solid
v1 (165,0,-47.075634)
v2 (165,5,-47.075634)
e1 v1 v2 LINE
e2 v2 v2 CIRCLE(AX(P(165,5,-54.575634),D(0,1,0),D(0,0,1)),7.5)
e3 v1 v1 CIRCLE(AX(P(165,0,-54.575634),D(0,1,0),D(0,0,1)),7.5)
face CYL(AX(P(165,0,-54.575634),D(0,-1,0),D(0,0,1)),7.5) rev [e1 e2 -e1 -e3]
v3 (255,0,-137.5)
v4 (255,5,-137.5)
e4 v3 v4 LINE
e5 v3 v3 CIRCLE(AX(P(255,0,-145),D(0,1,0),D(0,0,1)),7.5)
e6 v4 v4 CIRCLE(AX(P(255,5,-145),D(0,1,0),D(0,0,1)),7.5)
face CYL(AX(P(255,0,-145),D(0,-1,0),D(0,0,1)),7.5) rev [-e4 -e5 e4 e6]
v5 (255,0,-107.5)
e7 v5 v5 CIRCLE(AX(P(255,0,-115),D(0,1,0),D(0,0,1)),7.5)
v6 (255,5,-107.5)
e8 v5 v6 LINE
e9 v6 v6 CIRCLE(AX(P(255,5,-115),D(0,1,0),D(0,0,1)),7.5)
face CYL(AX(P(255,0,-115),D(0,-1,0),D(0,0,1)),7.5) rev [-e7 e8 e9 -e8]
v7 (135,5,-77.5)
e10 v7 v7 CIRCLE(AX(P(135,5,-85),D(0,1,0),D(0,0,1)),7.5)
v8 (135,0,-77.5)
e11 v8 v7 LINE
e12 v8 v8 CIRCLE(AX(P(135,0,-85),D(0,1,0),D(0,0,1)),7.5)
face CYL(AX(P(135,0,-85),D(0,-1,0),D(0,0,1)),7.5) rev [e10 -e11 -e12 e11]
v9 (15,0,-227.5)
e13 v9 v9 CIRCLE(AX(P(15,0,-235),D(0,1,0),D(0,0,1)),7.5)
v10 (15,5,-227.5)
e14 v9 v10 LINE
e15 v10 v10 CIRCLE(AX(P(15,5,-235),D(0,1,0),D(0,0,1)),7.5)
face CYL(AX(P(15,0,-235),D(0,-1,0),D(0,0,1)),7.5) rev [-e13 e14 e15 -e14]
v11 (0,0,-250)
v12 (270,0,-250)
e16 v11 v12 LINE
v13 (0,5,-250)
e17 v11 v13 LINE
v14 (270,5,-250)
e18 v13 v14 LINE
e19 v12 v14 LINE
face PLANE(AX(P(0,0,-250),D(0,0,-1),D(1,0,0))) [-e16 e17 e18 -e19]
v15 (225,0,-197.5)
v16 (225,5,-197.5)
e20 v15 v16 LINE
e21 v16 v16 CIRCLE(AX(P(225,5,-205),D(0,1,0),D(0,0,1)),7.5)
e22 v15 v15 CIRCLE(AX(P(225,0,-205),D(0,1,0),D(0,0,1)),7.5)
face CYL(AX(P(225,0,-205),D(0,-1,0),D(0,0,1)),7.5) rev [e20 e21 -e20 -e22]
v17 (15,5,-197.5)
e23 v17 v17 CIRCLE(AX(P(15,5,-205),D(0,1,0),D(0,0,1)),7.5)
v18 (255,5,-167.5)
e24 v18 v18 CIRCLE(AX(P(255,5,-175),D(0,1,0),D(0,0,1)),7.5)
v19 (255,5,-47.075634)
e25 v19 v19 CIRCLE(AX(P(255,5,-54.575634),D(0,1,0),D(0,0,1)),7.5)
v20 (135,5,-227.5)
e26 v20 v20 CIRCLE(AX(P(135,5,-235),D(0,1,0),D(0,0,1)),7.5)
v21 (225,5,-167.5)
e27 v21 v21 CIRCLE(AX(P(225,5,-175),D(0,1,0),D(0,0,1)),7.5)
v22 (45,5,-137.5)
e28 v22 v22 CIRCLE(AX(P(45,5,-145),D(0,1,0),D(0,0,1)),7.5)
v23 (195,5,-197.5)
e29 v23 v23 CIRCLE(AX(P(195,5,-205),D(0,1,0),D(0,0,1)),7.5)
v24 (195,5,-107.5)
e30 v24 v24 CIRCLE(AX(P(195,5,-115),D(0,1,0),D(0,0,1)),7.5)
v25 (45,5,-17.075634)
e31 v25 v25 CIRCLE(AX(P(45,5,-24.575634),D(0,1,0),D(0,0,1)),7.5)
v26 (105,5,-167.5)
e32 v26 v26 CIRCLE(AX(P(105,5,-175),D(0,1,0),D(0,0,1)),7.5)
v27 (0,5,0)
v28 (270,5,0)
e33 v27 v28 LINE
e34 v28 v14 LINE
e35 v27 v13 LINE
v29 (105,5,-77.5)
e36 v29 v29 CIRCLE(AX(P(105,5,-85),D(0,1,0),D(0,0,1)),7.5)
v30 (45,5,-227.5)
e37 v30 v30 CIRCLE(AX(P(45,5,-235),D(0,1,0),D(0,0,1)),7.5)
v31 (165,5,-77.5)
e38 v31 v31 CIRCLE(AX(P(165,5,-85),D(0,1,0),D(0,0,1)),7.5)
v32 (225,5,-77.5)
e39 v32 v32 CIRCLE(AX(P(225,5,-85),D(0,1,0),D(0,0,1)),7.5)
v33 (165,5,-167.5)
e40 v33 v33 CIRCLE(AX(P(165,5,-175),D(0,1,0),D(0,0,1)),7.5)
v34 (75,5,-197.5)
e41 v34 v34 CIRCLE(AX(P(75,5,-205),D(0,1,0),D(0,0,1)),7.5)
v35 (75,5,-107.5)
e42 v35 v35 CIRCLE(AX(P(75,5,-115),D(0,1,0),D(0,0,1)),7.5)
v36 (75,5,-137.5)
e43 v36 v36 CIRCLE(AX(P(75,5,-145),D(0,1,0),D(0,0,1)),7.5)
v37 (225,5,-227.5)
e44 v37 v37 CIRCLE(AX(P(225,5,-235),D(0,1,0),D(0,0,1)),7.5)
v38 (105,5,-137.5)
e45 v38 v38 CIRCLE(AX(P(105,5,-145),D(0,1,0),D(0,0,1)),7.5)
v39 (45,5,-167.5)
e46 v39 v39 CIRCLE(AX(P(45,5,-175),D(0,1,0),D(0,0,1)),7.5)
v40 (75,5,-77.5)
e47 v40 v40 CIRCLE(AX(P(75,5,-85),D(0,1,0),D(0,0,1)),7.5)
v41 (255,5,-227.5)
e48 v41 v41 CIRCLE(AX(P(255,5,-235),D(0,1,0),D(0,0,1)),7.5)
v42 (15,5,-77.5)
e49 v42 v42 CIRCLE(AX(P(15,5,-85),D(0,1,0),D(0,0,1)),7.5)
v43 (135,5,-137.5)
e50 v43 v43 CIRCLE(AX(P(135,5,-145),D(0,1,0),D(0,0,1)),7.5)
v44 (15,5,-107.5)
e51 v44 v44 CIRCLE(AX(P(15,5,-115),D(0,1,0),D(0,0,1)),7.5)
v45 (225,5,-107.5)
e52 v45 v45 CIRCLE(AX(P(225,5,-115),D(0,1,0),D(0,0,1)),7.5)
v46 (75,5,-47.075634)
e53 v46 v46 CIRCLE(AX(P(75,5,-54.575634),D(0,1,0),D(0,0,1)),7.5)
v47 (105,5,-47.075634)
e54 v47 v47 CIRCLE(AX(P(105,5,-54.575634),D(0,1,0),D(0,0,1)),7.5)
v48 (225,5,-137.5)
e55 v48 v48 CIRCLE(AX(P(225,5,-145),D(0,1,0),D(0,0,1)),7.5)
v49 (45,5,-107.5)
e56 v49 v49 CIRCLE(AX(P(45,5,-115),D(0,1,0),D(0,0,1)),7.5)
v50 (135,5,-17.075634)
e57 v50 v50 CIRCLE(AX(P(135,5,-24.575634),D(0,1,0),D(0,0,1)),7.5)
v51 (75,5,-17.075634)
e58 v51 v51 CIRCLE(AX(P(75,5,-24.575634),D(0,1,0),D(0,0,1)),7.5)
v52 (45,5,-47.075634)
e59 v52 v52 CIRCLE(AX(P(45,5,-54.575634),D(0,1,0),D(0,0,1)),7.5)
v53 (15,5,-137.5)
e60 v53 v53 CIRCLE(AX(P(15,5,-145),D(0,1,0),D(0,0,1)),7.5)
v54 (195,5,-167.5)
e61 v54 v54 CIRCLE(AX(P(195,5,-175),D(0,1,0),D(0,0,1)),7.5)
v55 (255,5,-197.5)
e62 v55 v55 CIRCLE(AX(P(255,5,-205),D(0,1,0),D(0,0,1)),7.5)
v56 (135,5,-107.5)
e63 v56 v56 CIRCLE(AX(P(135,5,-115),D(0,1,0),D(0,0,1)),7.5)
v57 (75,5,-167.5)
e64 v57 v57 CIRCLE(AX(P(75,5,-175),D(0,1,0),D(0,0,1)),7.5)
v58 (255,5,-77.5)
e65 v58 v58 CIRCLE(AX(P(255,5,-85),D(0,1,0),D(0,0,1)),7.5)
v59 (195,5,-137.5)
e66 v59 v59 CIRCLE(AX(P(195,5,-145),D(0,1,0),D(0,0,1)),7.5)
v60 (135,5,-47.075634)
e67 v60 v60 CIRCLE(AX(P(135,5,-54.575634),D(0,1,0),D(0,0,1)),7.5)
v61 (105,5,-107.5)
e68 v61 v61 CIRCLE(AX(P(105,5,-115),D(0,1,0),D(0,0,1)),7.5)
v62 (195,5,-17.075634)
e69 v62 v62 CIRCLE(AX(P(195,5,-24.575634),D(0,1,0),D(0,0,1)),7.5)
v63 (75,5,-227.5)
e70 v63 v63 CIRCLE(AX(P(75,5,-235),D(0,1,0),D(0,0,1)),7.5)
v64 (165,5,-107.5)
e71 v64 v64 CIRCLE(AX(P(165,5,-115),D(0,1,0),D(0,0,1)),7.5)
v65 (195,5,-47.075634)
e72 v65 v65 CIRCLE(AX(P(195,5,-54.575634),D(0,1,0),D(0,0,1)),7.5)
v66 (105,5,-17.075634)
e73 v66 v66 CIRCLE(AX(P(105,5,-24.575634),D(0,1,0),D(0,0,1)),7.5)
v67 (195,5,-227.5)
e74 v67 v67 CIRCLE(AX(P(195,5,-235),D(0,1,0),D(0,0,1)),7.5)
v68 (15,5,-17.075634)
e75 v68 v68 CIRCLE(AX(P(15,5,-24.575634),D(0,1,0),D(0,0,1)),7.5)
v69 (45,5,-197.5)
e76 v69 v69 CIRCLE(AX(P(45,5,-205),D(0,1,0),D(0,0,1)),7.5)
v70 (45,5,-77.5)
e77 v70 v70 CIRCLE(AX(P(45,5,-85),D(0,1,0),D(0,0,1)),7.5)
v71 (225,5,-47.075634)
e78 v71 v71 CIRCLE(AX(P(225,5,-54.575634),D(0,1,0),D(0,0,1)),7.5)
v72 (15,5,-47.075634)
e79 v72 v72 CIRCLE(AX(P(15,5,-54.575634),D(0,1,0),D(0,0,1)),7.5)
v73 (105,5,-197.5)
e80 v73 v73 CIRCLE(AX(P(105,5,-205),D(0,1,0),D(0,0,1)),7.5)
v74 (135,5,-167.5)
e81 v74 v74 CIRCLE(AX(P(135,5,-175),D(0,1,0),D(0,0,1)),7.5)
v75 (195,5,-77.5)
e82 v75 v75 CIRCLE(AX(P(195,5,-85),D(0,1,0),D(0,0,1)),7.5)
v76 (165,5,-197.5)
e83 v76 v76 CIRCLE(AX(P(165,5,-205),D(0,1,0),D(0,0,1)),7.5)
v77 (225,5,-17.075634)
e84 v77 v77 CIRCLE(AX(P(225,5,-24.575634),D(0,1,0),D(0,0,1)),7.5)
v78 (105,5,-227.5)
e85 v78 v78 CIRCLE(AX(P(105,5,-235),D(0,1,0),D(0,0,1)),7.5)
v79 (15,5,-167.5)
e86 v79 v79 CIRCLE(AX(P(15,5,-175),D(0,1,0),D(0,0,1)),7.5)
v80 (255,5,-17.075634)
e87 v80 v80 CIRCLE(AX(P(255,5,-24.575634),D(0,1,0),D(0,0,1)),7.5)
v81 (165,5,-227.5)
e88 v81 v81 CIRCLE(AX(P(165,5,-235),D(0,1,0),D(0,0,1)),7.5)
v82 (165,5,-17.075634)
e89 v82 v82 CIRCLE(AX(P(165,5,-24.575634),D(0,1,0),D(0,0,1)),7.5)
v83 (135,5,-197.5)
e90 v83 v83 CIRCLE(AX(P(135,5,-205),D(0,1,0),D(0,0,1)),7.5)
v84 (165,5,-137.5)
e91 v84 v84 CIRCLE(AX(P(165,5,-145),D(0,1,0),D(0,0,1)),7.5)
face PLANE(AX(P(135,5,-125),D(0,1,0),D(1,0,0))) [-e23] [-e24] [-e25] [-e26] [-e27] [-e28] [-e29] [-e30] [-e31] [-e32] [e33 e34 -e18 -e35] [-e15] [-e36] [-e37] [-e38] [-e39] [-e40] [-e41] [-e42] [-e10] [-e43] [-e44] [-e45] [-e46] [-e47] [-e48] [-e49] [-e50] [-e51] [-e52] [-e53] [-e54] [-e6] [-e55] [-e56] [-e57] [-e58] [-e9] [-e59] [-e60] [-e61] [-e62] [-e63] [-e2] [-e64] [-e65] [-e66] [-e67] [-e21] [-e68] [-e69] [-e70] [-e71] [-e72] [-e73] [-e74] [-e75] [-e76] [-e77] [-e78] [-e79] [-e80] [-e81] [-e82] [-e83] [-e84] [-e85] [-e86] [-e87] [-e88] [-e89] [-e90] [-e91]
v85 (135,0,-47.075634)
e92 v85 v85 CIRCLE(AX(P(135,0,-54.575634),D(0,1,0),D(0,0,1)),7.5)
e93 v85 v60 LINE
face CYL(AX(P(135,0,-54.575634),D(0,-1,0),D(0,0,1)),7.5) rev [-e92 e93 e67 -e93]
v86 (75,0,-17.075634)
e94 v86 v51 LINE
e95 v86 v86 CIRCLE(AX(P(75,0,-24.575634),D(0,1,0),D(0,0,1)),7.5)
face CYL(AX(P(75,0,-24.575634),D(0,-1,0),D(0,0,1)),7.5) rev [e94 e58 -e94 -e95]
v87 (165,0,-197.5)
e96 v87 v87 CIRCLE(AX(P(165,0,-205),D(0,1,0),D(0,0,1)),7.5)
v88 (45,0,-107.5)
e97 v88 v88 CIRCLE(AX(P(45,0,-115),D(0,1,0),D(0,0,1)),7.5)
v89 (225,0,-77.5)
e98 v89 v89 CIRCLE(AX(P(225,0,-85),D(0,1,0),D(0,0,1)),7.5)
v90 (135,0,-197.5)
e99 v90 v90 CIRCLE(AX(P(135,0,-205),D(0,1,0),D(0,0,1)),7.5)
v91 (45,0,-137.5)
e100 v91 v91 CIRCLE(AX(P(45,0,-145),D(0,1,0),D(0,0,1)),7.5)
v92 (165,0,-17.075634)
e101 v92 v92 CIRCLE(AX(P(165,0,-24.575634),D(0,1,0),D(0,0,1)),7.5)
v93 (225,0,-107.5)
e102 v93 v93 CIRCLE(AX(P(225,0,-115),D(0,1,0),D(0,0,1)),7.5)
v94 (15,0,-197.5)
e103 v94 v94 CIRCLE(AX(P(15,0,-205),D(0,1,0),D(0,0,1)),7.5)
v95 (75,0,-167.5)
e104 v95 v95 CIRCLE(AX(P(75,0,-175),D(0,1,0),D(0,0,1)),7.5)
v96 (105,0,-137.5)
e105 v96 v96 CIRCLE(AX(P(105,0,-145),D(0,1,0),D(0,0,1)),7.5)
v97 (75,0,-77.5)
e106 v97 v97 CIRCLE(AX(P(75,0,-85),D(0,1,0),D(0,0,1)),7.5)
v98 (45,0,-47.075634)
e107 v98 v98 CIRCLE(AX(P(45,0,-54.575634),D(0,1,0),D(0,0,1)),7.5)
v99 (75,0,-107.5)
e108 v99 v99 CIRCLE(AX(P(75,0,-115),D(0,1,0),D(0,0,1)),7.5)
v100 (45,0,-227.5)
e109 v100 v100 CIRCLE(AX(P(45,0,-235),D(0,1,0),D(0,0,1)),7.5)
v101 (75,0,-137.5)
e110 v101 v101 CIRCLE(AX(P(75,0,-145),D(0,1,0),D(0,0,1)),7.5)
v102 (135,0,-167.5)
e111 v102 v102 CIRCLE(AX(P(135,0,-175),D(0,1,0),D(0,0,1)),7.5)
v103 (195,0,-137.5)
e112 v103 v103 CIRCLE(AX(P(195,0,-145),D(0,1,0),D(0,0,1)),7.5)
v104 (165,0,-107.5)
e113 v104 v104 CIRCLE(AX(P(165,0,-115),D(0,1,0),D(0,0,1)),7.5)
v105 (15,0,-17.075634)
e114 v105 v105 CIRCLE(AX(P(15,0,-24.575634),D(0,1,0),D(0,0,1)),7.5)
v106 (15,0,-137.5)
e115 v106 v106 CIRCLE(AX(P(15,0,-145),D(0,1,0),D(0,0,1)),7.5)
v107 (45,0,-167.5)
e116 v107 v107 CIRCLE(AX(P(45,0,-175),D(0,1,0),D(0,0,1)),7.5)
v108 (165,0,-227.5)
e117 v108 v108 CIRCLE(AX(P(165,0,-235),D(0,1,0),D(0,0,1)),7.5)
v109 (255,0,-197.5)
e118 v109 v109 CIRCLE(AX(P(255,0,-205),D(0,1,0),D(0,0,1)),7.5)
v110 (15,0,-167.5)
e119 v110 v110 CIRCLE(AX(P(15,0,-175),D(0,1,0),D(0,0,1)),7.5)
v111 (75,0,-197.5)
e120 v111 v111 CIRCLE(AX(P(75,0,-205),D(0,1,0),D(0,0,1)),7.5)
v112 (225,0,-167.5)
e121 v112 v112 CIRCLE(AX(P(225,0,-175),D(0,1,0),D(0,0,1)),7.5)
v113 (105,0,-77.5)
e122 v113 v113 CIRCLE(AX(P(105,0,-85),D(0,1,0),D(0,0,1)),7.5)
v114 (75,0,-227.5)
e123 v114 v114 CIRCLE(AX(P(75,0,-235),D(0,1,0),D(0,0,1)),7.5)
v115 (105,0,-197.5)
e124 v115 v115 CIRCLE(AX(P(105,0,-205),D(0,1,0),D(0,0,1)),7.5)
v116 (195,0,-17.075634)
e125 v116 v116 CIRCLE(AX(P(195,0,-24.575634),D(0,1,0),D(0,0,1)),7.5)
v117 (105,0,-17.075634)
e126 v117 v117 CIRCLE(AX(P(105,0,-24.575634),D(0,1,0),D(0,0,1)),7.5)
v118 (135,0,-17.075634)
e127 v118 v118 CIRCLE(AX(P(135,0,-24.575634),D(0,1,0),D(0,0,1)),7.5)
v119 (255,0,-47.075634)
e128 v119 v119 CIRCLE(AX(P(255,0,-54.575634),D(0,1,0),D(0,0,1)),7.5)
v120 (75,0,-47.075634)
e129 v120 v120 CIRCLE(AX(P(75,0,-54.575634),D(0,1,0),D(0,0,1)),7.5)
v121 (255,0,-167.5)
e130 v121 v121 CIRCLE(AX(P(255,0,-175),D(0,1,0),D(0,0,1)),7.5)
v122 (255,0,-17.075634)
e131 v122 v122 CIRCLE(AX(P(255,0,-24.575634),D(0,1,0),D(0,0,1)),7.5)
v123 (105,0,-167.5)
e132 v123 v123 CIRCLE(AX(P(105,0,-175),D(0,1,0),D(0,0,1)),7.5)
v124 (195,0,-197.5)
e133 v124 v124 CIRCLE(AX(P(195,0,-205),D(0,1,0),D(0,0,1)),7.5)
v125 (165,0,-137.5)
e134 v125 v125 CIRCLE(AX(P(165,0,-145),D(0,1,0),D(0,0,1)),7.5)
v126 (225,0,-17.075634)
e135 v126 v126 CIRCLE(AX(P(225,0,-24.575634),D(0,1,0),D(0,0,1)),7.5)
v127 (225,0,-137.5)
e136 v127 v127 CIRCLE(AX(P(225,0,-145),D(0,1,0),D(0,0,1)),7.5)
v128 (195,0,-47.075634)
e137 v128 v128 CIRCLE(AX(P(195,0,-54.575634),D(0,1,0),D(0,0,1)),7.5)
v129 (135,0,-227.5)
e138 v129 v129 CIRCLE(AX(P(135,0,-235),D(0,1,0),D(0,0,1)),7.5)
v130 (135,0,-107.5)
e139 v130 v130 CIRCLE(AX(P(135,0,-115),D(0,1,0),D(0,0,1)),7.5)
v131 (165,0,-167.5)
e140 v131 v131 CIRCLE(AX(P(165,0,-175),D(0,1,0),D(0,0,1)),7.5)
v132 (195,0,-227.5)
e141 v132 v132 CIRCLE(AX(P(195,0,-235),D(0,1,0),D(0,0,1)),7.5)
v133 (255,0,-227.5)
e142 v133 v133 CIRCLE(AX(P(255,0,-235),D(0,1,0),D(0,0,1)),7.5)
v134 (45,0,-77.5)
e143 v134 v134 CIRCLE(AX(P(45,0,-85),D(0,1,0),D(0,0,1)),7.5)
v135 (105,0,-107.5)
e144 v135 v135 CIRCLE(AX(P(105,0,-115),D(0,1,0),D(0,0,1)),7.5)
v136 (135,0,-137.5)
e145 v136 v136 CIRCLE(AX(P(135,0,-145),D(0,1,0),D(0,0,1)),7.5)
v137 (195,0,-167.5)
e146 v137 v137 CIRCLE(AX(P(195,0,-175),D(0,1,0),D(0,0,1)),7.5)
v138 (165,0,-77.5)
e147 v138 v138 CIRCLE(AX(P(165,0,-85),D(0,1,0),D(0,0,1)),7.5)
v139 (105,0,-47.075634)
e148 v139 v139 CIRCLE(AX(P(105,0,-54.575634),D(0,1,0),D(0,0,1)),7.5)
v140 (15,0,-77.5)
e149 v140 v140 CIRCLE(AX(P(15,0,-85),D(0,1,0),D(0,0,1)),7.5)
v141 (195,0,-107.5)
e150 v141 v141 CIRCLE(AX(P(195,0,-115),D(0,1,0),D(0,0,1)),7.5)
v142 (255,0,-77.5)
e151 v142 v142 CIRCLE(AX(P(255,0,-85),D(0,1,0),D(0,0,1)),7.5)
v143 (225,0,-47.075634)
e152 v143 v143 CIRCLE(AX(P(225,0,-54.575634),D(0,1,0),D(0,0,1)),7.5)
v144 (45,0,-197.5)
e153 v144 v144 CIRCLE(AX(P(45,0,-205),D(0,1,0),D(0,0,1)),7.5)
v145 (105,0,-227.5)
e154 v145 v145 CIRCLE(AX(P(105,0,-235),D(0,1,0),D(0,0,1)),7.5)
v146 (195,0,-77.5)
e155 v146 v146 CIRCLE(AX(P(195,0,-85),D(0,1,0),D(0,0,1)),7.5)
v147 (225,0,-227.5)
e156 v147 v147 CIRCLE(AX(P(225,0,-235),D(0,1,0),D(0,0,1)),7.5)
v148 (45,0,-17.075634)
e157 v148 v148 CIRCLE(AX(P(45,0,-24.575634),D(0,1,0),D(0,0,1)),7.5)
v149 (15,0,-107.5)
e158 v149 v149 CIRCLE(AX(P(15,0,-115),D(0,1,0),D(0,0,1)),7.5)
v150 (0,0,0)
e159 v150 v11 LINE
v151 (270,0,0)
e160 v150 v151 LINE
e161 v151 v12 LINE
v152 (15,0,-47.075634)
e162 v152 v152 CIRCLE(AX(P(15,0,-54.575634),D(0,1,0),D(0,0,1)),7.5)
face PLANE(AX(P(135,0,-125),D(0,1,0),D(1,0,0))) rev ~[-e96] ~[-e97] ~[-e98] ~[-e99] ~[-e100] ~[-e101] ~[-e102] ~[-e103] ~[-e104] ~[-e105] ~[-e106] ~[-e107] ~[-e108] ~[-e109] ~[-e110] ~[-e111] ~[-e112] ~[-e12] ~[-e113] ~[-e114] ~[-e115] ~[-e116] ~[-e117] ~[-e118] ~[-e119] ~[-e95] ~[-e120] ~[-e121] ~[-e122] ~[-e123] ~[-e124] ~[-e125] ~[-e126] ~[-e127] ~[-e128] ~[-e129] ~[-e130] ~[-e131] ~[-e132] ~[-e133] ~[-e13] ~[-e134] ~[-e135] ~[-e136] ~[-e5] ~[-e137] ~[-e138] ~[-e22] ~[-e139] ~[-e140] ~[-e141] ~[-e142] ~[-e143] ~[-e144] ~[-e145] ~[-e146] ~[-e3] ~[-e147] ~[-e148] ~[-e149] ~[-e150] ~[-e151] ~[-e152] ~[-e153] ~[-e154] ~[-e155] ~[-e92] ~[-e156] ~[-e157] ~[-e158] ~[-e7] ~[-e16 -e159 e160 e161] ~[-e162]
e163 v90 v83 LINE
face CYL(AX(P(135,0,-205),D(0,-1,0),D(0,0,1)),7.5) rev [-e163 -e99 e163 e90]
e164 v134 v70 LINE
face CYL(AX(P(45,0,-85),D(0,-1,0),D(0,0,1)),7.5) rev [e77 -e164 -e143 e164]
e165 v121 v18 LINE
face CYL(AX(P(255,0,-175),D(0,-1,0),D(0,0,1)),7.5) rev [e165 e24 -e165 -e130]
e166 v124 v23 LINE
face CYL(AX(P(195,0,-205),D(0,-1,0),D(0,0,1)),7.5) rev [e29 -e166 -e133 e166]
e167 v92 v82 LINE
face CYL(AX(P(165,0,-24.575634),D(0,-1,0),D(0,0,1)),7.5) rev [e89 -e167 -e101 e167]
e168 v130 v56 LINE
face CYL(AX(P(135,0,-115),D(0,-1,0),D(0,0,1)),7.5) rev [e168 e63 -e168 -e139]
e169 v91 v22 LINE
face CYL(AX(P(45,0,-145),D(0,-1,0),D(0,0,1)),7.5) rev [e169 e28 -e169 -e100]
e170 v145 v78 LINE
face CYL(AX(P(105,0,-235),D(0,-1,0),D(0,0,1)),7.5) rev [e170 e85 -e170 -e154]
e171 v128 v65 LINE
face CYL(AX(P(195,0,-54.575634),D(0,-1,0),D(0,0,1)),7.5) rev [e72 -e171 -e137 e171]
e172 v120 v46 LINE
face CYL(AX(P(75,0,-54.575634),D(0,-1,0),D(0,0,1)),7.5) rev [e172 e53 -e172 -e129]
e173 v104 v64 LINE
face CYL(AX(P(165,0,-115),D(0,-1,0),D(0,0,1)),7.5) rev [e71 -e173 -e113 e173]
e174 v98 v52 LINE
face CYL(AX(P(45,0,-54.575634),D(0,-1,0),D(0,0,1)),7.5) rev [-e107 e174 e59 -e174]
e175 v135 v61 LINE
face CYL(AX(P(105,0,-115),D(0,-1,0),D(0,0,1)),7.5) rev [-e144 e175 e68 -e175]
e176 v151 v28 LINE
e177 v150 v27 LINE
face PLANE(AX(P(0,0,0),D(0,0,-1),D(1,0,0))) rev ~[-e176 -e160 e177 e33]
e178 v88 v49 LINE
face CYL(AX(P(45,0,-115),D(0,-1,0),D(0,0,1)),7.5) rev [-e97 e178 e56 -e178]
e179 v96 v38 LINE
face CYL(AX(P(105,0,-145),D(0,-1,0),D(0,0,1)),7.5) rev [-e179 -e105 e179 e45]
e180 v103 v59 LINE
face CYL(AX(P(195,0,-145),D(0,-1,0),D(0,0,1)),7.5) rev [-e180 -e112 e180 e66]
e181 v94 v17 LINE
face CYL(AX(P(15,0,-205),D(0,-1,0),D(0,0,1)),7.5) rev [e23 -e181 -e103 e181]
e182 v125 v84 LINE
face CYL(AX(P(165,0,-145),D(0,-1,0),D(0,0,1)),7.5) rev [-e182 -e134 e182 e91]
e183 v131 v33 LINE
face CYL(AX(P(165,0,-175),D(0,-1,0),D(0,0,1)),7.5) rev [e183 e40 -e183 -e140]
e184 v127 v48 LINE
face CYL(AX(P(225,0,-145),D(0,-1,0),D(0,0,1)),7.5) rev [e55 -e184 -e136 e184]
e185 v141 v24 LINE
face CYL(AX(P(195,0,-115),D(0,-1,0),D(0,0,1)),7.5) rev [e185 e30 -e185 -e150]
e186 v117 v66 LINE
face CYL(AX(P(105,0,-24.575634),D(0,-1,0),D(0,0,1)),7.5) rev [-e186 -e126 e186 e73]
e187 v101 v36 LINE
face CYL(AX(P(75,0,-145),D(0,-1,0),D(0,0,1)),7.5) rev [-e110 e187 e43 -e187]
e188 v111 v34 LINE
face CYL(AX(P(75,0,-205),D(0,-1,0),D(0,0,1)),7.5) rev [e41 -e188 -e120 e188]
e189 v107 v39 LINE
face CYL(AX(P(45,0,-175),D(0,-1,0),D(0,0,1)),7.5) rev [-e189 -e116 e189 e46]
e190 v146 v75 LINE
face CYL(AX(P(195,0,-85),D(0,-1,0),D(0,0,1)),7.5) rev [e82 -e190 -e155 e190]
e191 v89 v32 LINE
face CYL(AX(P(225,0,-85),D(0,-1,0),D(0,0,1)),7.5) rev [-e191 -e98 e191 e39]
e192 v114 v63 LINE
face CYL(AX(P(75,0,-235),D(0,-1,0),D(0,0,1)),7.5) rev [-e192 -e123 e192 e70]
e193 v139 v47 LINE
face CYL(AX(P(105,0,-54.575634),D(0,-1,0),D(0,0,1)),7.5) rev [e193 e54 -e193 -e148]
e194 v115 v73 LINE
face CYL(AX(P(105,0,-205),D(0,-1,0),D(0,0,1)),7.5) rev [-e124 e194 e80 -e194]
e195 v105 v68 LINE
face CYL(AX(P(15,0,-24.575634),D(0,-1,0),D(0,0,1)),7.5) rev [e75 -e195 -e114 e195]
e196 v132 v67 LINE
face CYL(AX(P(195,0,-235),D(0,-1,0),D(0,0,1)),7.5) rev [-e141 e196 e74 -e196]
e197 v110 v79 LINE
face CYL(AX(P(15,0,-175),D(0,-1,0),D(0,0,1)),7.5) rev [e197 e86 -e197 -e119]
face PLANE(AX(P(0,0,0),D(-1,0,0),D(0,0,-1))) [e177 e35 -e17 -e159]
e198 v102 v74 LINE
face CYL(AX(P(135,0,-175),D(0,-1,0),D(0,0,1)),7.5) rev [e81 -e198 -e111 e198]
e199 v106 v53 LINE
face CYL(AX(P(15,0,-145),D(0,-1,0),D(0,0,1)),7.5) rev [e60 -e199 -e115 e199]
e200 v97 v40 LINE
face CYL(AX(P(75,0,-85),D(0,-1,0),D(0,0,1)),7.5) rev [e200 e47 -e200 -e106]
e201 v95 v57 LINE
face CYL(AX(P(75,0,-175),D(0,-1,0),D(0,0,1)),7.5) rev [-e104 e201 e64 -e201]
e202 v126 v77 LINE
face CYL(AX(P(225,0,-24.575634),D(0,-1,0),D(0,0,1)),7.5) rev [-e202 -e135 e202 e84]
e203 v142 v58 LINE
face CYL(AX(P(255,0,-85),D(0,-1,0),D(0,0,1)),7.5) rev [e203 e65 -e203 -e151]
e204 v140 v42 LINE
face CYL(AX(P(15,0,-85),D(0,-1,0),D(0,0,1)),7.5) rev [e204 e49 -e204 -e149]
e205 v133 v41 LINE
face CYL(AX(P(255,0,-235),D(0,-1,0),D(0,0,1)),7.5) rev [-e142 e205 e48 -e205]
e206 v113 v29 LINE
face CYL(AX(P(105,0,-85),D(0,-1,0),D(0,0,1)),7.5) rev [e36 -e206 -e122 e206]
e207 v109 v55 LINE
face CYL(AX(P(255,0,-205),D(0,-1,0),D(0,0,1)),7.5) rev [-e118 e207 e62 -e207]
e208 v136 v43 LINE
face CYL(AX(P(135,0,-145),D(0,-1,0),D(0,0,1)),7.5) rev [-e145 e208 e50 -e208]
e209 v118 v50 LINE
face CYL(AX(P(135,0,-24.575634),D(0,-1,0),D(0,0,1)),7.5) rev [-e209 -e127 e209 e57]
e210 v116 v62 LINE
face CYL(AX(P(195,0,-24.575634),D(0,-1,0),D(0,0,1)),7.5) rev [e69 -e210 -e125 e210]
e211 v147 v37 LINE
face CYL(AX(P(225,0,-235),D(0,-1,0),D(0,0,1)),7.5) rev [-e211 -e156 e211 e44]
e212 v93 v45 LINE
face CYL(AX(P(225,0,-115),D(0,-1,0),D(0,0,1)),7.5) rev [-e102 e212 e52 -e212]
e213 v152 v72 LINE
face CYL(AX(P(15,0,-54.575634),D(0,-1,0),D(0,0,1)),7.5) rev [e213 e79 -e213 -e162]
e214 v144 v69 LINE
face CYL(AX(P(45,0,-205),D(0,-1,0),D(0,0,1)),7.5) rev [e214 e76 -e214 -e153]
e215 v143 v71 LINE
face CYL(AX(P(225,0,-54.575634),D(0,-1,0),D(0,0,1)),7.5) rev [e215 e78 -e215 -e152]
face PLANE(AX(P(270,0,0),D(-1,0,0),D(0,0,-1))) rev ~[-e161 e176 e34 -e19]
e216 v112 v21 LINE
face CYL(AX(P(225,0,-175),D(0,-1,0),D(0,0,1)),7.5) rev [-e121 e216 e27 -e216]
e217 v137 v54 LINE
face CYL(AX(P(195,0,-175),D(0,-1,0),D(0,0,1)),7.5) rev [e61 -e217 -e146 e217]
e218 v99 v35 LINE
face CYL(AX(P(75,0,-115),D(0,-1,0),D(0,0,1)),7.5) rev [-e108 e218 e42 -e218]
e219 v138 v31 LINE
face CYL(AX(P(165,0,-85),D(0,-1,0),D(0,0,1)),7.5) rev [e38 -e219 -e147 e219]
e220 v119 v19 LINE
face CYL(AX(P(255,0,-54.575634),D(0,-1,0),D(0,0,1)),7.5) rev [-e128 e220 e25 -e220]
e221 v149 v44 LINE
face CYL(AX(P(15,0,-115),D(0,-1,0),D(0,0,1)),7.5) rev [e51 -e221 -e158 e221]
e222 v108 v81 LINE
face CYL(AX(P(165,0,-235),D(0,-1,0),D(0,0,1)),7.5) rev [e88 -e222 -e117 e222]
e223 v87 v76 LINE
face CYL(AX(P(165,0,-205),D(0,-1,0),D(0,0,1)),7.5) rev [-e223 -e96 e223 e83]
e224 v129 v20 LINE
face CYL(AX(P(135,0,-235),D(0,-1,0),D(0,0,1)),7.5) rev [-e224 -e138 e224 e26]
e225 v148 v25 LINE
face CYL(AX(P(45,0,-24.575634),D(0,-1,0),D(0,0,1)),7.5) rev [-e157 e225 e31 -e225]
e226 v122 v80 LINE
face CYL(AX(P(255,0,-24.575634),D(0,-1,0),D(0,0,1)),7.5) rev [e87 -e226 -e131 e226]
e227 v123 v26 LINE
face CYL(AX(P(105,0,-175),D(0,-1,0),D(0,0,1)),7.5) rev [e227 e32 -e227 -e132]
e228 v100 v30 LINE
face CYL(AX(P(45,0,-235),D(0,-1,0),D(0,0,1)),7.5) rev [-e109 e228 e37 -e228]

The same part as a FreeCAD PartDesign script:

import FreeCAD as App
import Part
import Sketcher

V = App.Vector
Q = App.Units.Quantity

doc = App.newDocument("Part")
params = doc.addObject("Spreadsheet::Sheet", "Params")
for row, (alias, value) in enumerate([
    ("sketch1_diameter", "15 mm"),
    ("sketch1_width", "270 mm"),
    ("sketch1_height", "250 mm"),
    ("pad1_length", "5 mm"),
], start=1):
    params.set(f"A{row}", alias)
    params.set(f"B{row}", "=" + value)
    params.setAlias(f"B{row}", alias)

body = doc.addObject("PartDesign::Body", "Body")

# Sketch on XZ plane
sketch1 = body.newObject("Sketcher::SketchObject", "Sketch")
sketch1.AttachmentSupport = (doc.getObject("XZ_Plane"), [""])
sketch1.MapMode = "FlatFace"
sketch1.addGeometry(Part.LineSegment(V(0, -250, 0), V(0, 0, 0)), False)
sketch1.addGeometry(Part.LineSegment(V(0, 0, 0), V(270, 0, 0)), False)
sketch1.addGeometry(Part.LineSegment(V(270, 0, 0), V(270, -250, 0)), False)
sketch1.addGeometry(Part.LineSegment(V(270, -250, 0), V(0, -250, 0)), False)
sketch1.addGeometry(Part.Circle(V(15, -24.575634, 0), V(0, 0, 1), 7.5), False)
sketch1.addGeometry(Part.Circle(V(45, -24.575634, 0), V(0, 0, 1), 7.5), False)
sketch1.addGeometry(Part.Circle(V(15, -54.575634, 0), V(0, 0, 1), 7.5), False)
sketch1.addGeometry(Part.Circle(V(45, -54.575634, 0), V(0, 0, 1), 7.5), False)
sketch1.addGeometry(Part.Circle(V(75, -24.575634, 0), V(0, 0, 1), 7.5), False)
sketch1.addGeometry(Part.Circle(V(105, -24.575634, 0), V(0, 0, 1), 7.5), False)
sketch1.addGeometry(Part.Circle(V(75, -54.575634, 0), V(0, 0, 1), 7.5), False)
sketch1.addGeometry(Part.Circle(V(105, -54.575634, 0), V(0, 0, 1), 7.5), False)
sketch1.addGeometry(Part.Circle(V(15, -85, 0), V(0, 0, 1), 7.5), False)
sketch1.addGeometry(Part.Circle(V(45, -85, 0), V(0, 0, 1), 7.5), False)
sketch1.addGeometry(Part.Circle(V(15, -115, 0), V(0, 0, 1), 7.5), False)
sketch1.addGeometry(Part.Circle(V(45, -115, 0), V(0, 0, 1), 7.5), False)
sketch1.addGeometry(Part.Circle(V(75, -85, 0), V(0, 0, 1), 7.5), False)
sketch1.addGeometry(Part.Circle(V(105, -85, 0), V(0, 0, 1), 7.5), False)
sketch1.addGeometry(Part.Circle(V(75, -115, 0), V(0, 0, 1), 7.5), False)
sketch1.addGeometry(Part.Circle(V(105, -115, 0), V(0, 0, 1), 7.5), False)
sketch1.addGeometry(Part.Circle(V(135, -24.575634, 0), V(0, 0, 1), 7.5), False)
sketch1.addGeometry(Part.Circle(V(165, -24.575634, 0), V(0, 0, 1), 7.5), False)
sketch1.addGeometry(Part.Circle(V(195, -24.575634, 0), V(0, 0, 1), 7.5), False)
sketch1.addGeometry(Part.Circle(V(135, -54.575634, 0), V(0, 0, 1), 7.5), False)
sketch1.addGeometry(Part.Circle(V(165, -54.575634, 0), V(0, 0, 1), 7.5), False)
sketch1.addGeometry(Part.Circle(V(195, -54.575634, 0), V(0, 0, 1), 7.5), False)
sketch1.addGeometry(Part.Circle(V(225, -24.575634, 0), V(0, 0, 1), 7.5), False)
sketch1.addGeometry(Part.Circle(V(255, -24.575634, 0), V(0, 0, 1), 7.5), False)
sketch1.addGeometry(Part.Circle(V(225, -54.575634, 0), V(0, 0, 1), 7.5), False)
sketch1.addGeometry(Part.Circle(V(255, -54.575634, 0), V(0, 0, 1), 7.5), False)
sketch1.addGeometry(Part.Circle(V(135, -85, 0), V(0, 0, 1), 7.5), False)
sketch1.addGeometry(Part.Circle(V(165, -85, 0), V(0, 0, 1), 7.5), False)
sketch1.addGeometry(Part.Circle(V(195, -85, 0), V(0, 0, 1), 7.5), False)
sketch1.addGeometry(Part.Circle(V(135, -115, 0), V(0, 0, 1), 7.5), False)
sketch1.addGeometry(Part.Circle(V(165, -115, 0), V(0, 0, 1), 7.5), False)
sketch1.addGeometry(Part.Circle(V(195, -115, 0), V(0, 0, 1), 7.5), False)
sketch1.addGeometry(Part.Circle(V(225, -85, 0), V(0, 0, 1), 7.5), False)
sketch1.addGeometry(Part.Circle(V(255, -85, 0), V(0, 0, 1), 7.5), False)
sketch1.addGeometry(Part.Circle(V(225, -115, 0), V(0, 0, 1), 7.5), False)
sketch1.addGeometry(Part.Circle(V(255, -115, 0), V(0, 0, 1), 7.5), False)
sketch1.addGeometry(Part.Circle(V(15, -145, 0), V(0, 0, 1), 7.5), False)
sketch1.addGeometry(Part.Circle(V(45, -145, 0), V(0, 0, 1), 7.5), False)
sketch1.addGeometry(Part.Circle(V(15, -175, 0), V(0, 0, 1), 7.5), False)
sketch1.addGeometry(Part.Circle(V(45, -175, 0), V(0, 0, 1), 7.5), False)
sketch1.addGeometry(Part.Circle(V(75, -145, 0), V(0, 0, 1), 7.5), False)
sketch1.addGeometry(Part.Circle(V(105, -145, 0), V(0, 0, 1), 7.5), False)
sketch1.addGeometry(Part.Circle(V(75, -175, 0), V(0, 0, 1), 7.5), False)
sketch1.addGeometry(Part.Circle(V(105, -175, 0), V(0, 0, 1), 7.5), False)
sketch1.addGeometry(Part.Circle(V(15, -205, 0), V(0, 0, 1), 7.5), False)
sketch1.addGeometry(Part.Circle(V(45, -205, 0), V(0, 0, 1), 7.5), False)
sketch1.addGeometry(Part.Circle(V(15, -235, 0), V(0, 0, 1), 7.5), False)
sketch1.addGeometry(Part.Circle(V(45, -235, 0), V(0, 0, 1), 7.5), False)
sketch1.addGeometry(Part.Circle(V(75, -205, 0), V(0, 0, 1), 7.5), False)
sketch1.addGeometry(Part.Circle(V(105, -205, 0), V(0, 0, 1), 7.5), False)
sketch1.addGeometry(Part.Circle(V(75, -235, 0), V(0, 0, 1), 7.5), False)
sketch1.addGeometry(Part.Circle(V(105, -235, 0), V(0, 0, 1), 7.5), False)
sketch1.addGeometry(Part.Circle(V(135, -145, 0), V(0, 0, 1), 7.5), False)
sketch1.addGeometry(Part.Circle(V(165, -145, 0), V(0, 0, 1), 7.5), False)
sketch1.addGeometry(Part.Circle(V(195, -145, 0), V(0, 0, 1), 7.5), False)
sketch1.addGeometry(Part.Circle(V(135, -175, 0), V(0, 0, 1), 7.5), False)
sketch1.addGeometry(Part.Circle(V(165, -175, 0), V(0, 0, 1), 7.5), False)
sketch1.addGeometry(Part.Circle(V(195, -175, 0), V(0, 0, 1), 7.5), False)
sketch1.addGeometry(Part.Circle(V(225, -145, 0), V(0, 0, 1), 7.5), False)
sketch1.addGeometry(Part.Circle(V(255, -145, 0), V(0, 0, 1), 7.5), False)
sketch1.addGeometry(Part.Circle(V(225, -175, 0), V(0, 0, 1), 7.5), False)
sketch1.addGeometry(Part.Circle(V(255, -175, 0), V(0, 0, 1), 7.5), False)
sketch1.addGeometry(Part.Circle(V(135, -205, 0), V(0, 0, 1), 7.5), False)
sketch1.addGeometry(Part.Circle(V(165, -205, 0), V(0, 0, 1), 7.5), False)
sketch1.addGeometry(Part.Circle(V(195, -205, 0), V(0, 0, 1), 7.5), False)
sketch1.addGeometry(Part.Circle(V(135, -235, 0), V(0, 0, 1), 7.5), False)
sketch1.addGeometry(Part.Circle(V(165, -235, 0), V(0, 0, 1), 7.5), False)
sketch1.addGeometry(Part.Circle(V(195, -235, 0), V(0, 0, 1), 7.5), False)
sketch1.addGeometry(Part.Circle(V(225, -205, 0), V(0, 0, 1), 7.5), False)
sketch1.addGeometry(Part.Circle(V(255, -205, 0), V(0, 0, 1), 7.5), False)
sketch1.addGeometry(Part.Circle(V(225, -235, 0), V(0, 0, 1), 7.5), False)
sketch1.addGeometry(Part.Circle(V(255, -235, 0), V(0, 0, 1), 7.5), False)
sketch1.addConstraint(Sketcher.Constraint("Coincident", 0, 2, 1, 1))
sketch1.addConstraint(Sketcher.Constraint("Coincident", 1, 2, 2, 1))
sketch1.addConstraint(Sketcher.Constraint("Coincident", 2, 2, 3, 1))
sketch1.addConstraint(Sketcher.Constraint("Coincident", 3, 2, 0, 1))
sketch1.addConstraint(Sketcher.Constraint("Vertical", 0))
sketch1.addConstraint(Sketcher.Constraint("Horizontal", 1))
sketch1.addConstraint(Sketcher.Constraint("Vertical", 2))
sketch1.addConstraint(Sketcher.Constraint("Horizontal", 3))
sketch1.addConstraint(Sketcher.Constraint("Coincident", 0, 2, -1, 1))
sketch1.addConstraint(Sketcher.Constraint("Equal", 4, 5))
sketch1.addConstraint(Sketcher.Constraint("Equal", 5, 6))
sketch1.addConstraint(Sketcher.Constraint("Equal", 6, 7))
sketch1.addConstraint(Sketcher.Constraint("Equal", 7, 8))
sketch1.addConstraint(Sketcher.Constraint("Equal", 8, 9))
sketch1.addConstraint(Sketcher.Constraint("Equal", 9, 10))
sketch1.addConstraint(Sketcher.Constraint("Equal", 10, 11))
sketch1.addConstraint(Sketcher.Constraint("Equal", 11, 12))
sketch1.addConstraint(Sketcher.Constraint("Equal", 12, 13))
sketch1.addConstraint(Sketcher.Constraint("Equal", 13, 14))
sketch1.addConstraint(Sketcher.Constraint("Equal", 14, 15))
sketch1.addConstraint(Sketcher.Constraint("Equal", 15, 16))
sketch1.addConstraint(Sketcher.Constraint("Equal", 16, 17))
sketch1.addConstraint(Sketcher.Constraint("Equal", 17, 18))
sketch1.addConstraint(Sketcher.Constraint("Equal", 18, 19))
sketch1.addConstraint(Sketcher.Constraint("Equal", 19, 20))
sketch1.addConstraint(Sketcher.Constraint("Equal", 20, 21))
sketch1.addConstraint(Sketcher.Constraint("Equal", 21, 22))
sketch1.addConstraint(Sketcher.Constraint("Equal", 22, 23))
sketch1.addConstraint(Sketcher.Constraint("Equal", 23, 24))
sketch1.addConstraint(Sketcher.Constraint("Equal", 24, 25))
sketch1.addConstraint(Sketcher.Constraint("Equal", 25, 26))
sketch1.addConstraint(Sketcher.Constraint("Equal", 26, 27))
sketch1.addConstraint(Sketcher.Constraint("Equal", 27, 28))
sketch1.addConstraint(Sketcher.Constraint("Equal", 28, 29))
sketch1.addConstraint(Sketcher.Constraint("Equal", 29, 30))
sketch1.addConstraint(Sketcher.Constraint("Equal", 30, 31))
sketch1.addConstraint(Sketcher.Constraint("Equal", 31, 32))
sketch1.addConstraint(Sketcher.Constraint("Equal", 32, 33))
sketch1.addConstraint(Sketcher.Constraint("Equal", 33, 34))
sketch1.addConstraint(Sketcher.Constraint("Equal", 34, 35))
sketch1.addConstraint(Sketcher.Constraint("Equal", 35, 36))
sketch1.addConstraint(Sketcher.Constraint("Equal", 36, 37))
sketch1.addConstraint(Sketcher.Constraint("Equal", 37, 38))
sketch1.addConstraint(Sketcher.Constraint("Equal", 38, 39))
sketch1.addConstraint(Sketcher.Constraint("Equal", 39, 40))
sketch1.addConstraint(Sketcher.Constraint("Equal", 40, 41))
sketch1.addConstraint(Sketcher.Constraint("Equal", 41, 42))
sketch1.addConstraint(Sketcher.Constraint("Equal", 42, 43))
sketch1.addConstraint(Sketcher.Constraint("Equal", 43, 44))
sketch1.addConstraint(Sketcher.Constraint("Equal", 44, 45))
sketch1.addConstraint(Sketcher.Constraint("Equal", 45, 46))
sketch1.addConstraint(Sketcher.Constraint("Equal", 46, 47))
sketch1.addConstraint(Sketcher.Constraint("Equal", 47, 48))
sketch1.addConstraint(Sketcher.Constraint("Equal", 48, 49))
sketch1.addConstraint(Sketcher.Constraint("Equal", 49, 50))
sketch1.addConstraint(Sketcher.Constraint("Equal", 50, 51))
sketch1.addConstraint(Sketcher.Constraint("Equal", 51, 52))
sketch1.addConstraint(Sketcher.Constraint("Equal", 52, 53))
sketch1.addConstraint(Sketcher.Constraint("Equal", 53, 54))
sketch1.addConstraint(Sketcher.Constraint("Equal", 54, 55))
sketch1.addConstraint(Sketcher.Constraint("Equal", 55, 56))
sketch1.addConstraint(Sketcher.Constraint("Equal", 56, 57))
sketch1.addConstraint(Sketcher.Constraint("Equal", 57, 58))
sketch1.addConstraint(Sketcher.Constraint("Equal", 58, 59))
sketch1.addConstraint(Sketcher.Constraint("Equal", 59, 60))
sketch1.addConstraint(Sketcher.Constraint("Equal", 60, 61))
sketch1.addConstraint(Sketcher.Constraint("Equal", 61, 62))
sketch1.addConstraint(Sketcher.Constraint("Equal", 62, 63))
sketch1.addConstraint(Sketcher.Constraint("Equal", 63, 64))
sketch1.addConstraint(Sketcher.Constraint("Equal", 64, 65))
sketch1.addConstraint(Sketcher.Constraint("Equal", 65, 66))
sketch1.addConstraint(Sketcher.Constraint("Equal", 66, 67))
sketch1.addConstraint(Sketcher.Constraint("Equal", 67, 68))
sketch1.addConstraint(Sketcher.Constraint("Equal", 68, 69))
sketch1.addConstraint(Sketcher.Constraint("Equal", 69, 70))
sketch1.addConstraint(Sketcher.Constraint("Equal", 70, 71))
sketch1.addConstraint(Sketcher.Constraint("Equal", 71, 72))
sketch1.addConstraint(Sketcher.Constraint("Equal", 72, 73))
sketch1.addConstraint(Sketcher.Constraint("Equal", 73, 74))
sketch1.addConstraint(Sketcher.Constraint("Equal", 74, 75))
sketch1.addConstraint(Sketcher.Constraint("Horizontal", 4, 3, 5, 3))
sketch1.addConstraint(Sketcher.Constraint("Horizontal", 6, 3, 7, 3))
sketch1.addConstraint(Sketcher.Constraint("Horizontal", 5, 3, 8, 3))
sketch1.addConstraint(Sketcher.Constraint("Horizontal", 8, 3, 9, 3))
sketch1.addConstraint(Sketcher.Constraint("Horizontal", 7, 3, 10, 3))
sketch1.addConstraint(Sketcher.Constraint("Horizontal", 10, 3, 11, 3))
sketch1.addConstraint(Sketcher.Constraint("Horizontal", 12, 3, 13, 3))
sketch1.addConstraint(Sketcher.Constraint("Horizontal", 14, 3, 15, 3))
sketch1.addConstraint(Sketcher.Constraint("Horizontal", 13, 3, 16, 3))
sketch1.addConstraint(Sketcher.Constraint("Horizontal", 16, 3, 17, 3))
sketch1.addConstraint(Sketcher.Constraint("Horizontal", 15, 3, 18, 3))
sketch1.addConstraint(Sketcher.Constraint("Horizontal", 18, 3, 19, 3))
sketch1.addConstraint(Sketcher.Constraint("Horizontal", 9, 3, 20, 3))
sketch1.addConstraint(Sketcher.Constraint("Horizontal", 20, 3, 21, 3))
sketch1.addConstraint(Sketcher.Constraint("Horizontal", 21, 3, 22, 3))
sketch1.addConstraint(Sketcher.Constraint("Horizontal", 11, 3, 23, 3))
sketch1.addConstraint(Sketcher.Constraint("Horizontal", 23, 3, 24, 3))
sketch1.addConstraint(Sketcher.Constraint("Horizontal", 24, 3, 25, 3))
sketch1.addConstraint(Sketcher.Constraint("Horizontal", 22, 3, 26, 3))
sketch1.addConstraint(Sketcher.Constraint("Horizontal", 26, 3, 27, 3))
sketch1.addConstraint(Sketcher.Constraint("Horizontal", 25, 3, 28, 3))
sketch1.addConstraint(Sketcher.Constraint("Horizontal", 28, 3, 29, 3))
sketch1.addConstraint(Sketcher.Constraint("Horizontal", 17, 3, 30, 3))
sketch1.addConstraint(Sketcher.Constraint("Horizontal", 30, 3, 31, 3))
sketch1.addConstraint(Sketcher.Constraint("Horizontal", 31, 3, 32, 3))
sketch1.addConstraint(Sketcher.Constraint("Horizontal", 19, 3, 33, 3))
sketch1.addConstraint(Sketcher.Constraint("Horizontal", 33, 3, 34, 3))
sketch1.addConstraint(Sketcher.Constraint("Horizontal", 34, 3, 35, 3))
sketch1.addConstraint(Sketcher.Constraint("Horizontal", 32, 3, 36, 3))
sketch1.addConstraint(Sketcher.Constraint("Horizontal", 36, 3, 37, 3))
sketch1.addConstraint(Sketcher.Constraint("Horizontal", 35, 3, 38, 3))
sketch1.addConstraint(Sketcher.Constraint("Horizontal", 38, 3, 39, 3))
sketch1.addConstraint(Sketcher.Constraint("Horizontal", 40, 3, 41, 3))
sketch1.addConstraint(Sketcher.Constraint("Horizontal", 42, 3, 43, 3))
sketch1.addConstraint(Sketcher.Constraint("Horizontal", 41, 3, 44, 3))
sketch1.addConstraint(Sketcher.Constraint("Horizontal", 44, 3, 45, 3))
sketch1.addConstraint(Sketcher.Constraint("Horizontal", 43, 3, 46, 3))
sketch1.addConstraint(Sketcher.Constraint("Horizontal", 46, 3, 47, 3))
sketch1.addConstraint(Sketcher.Constraint("Horizontal", 48, 3, 49, 3))
sketch1.addConstraint(Sketcher.Constraint("Horizontal", 50, 3, 51, 3))
sketch1.addConstraint(Sketcher.Constraint("Horizontal", 49, 3, 52, 3))
sketch1.addConstraint(Sketcher.Constraint("Horizontal", 52, 3, 53, 3))
sketch1.addConstraint(Sketcher.Constraint("Horizontal", 51, 3, 54, 3))
sketch1.addConstraint(Sketcher.Constraint("Horizontal", 54, 3, 55, 3))
sketch1.addConstraint(Sketcher.Constraint("Horizontal", 45, 3, 56, 3))
sketch1.addConstraint(Sketcher.Constraint("Horizontal", 56, 3, 57, 3))
sketch1.addConstraint(Sketcher.Constraint("Horizontal", 57, 3, 58, 3))
sketch1.addConstraint(Sketcher.Constraint("Horizontal", 47, 3, 59, 3))
sketch1.addConstraint(Sketcher.Constraint("Horizontal", 59, 3, 60, 3))
sketch1.addConstraint(Sketcher.Constraint("Horizontal", 60, 3, 61, 3))
sketch1.addConstraint(Sketcher.Constraint("Horizontal", 58, 3, 62, 3))
sketch1.addConstraint(Sketcher.Constraint("Horizontal", 62, 3, 63, 3))
sketch1.addConstraint(Sketcher.Constraint("Horizontal", 61, 3, 64, 3))
sketch1.addConstraint(Sketcher.Constraint("Horizontal", 64, 3, 65, 3))
sketch1.addConstraint(Sketcher.Constraint("Horizontal", 53, 3, 66, 3))
sketch1.addConstraint(Sketcher.Constraint("Horizontal", 66, 3, 67, 3))
sketch1.addConstraint(Sketcher.Constraint("Horizontal", 67, 3, 68, 3))
sketch1.addConstraint(Sketcher.Constraint("Horizontal", 55, 3, 69, 3))
sketch1.addConstraint(Sketcher.Constraint("Horizontal", 69, 3, 70, 3))
sketch1.addConstraint(Sketcher.Constraint("Horizontal", 70, 3, 71, 3))
sketch1.addConstraint(Sketcher.Constraint("Horizontal", 68, 3, 72, 3))
sketch1.addConstraint(Sketcher.Constraint("Horizontal", 72, 3, 73, 3))
sketch1.addConstraint(Sketcher.Constraint("Horizontal", 71, 3, 74, 3))
sketch1.addConstraint(Sketcher.Constraint("Horizontal", 74, 3, 75, 3))
sketch1.addConstraint(Sketcher.Constraint("Vertical", 4, 3, 6, 3))
sketch1.addConstraint(Sketcher.Constraint("Vertical", 5, 3, 7, 3))
sketch1.addConstraint(Sketcher.Constraint("Vertical", 8, 3, 10, 3))
sketch1.addConstraint(Sketcher.Constraint("Vertical", 9, 3, 11, 3))
sketch1.addConstraint(Sketcher.Constraint("Vertical", 6, 3, 12, 3))
sketch1.addConstraint(Sketcher.Constraint("Vertical", 7, 3, 13, 3))
sketch1.addConstraint(Sketcher.Constraint("Vertical", 12, 3, 14, 3))
sketch1.addConstraint(Sketcher.Constraint("Vertical", 13, 3, 15, 3))
sketch1.addConstraint(Sketcher.Constraint("Vertical", 10, 3, 16, 3))
sketch1.addConstraint(Sketcher.Constraint("Vertical", 11, 3, 17, 3))
sketch1.addConstraint(Sketcher.Constraint("Vertical", 16, 3, 18, 3))
sketch1.addConstraint(Sketcher.Constraint("Vertical", 17, 3, 19, 3))
sketch1.addConstraint(Sketcher.Constraint("Vertical", 20, 3, 23, 3))
sketch1.addConstraint(Sketcher.Constraint("Vertical", 21, 3, 24, 3))
sketch1.addConstraint(Sketcher.Constraint("Vertical", 22, 3, 25, 3))
sketch1.addConstraint(Sketcher.Constraint("Vertical", 26, 3, 28, 3))
sketch1.addConstraint(Sketcher.Constraint("Vertical", 27, 3, 29, 3))
sketch1.addConstraint(Sketcher.Constraint("Vertical", 23, 3, 30, 3))
sketch1.addConstraint(Sketcher.Constraint("Vertical", 24, 3, 31, 3))
sketch1.addConstraint(Sketcher.Constraint("Vertical", 25, 3, 32, 3))
sketch1.addConstraint(Sketcher.Constraint("Vertical", 30, 3, 33, 3))
sketch1.addConstraint(Sketcher.Constraint("Vertical", 31, 3, 34, 3))
sketch1.addConstraint(Sketcher.Constraint("Vertical", 32, 3, 35, 3))
sketch1.addConstraint(Sketcher.Constraint("Vertical", 28, 3, 36, 3))
sketch1.addConstraint(Sketcher.Constraint("Vertical", 29, 3, 37, 3))
sketch1.addConstraint(Sketcher.Constraint("Vertical", 36, 3, 38, 3))
sketch1.addConstraint(Sketcher.Constraint("Vertical", 37, 3, 39, 3))
sketch1.addConstraint(Sketcher.Constraint("Vertical", 14, 3, 40, 3))
sketch1.addConstraint(Sketcher.Constraint("Vertical", 15, 3, 41, 3))
sketch1.addConstraint(Sketcher.Constraint("Vertical", 40, 3, 42, 3))
sketch1.addConstraint(Sketcher.Constraint("Vertical", 41, 3, 43, 3))
sketch1.addConstraint(Sketcher.Constraint("Vertical", 18, 3, 44, 3))
sketch1.addConstraint(Sketcher.Constraint("Vertical", 19, 3, 45, 3))
sketch1.addConstraint(Sketcher.Constraint("Vertical", 44, 3, 46, 3))
sketch1.addConstraint(Sketcher.Constraint("Vertical", 45, 3, 47, 3))
sketch1.addConstraint(Sketcher.Constraint("Vertical", 42, 3, 48, 3))
sketch1.addConstraint(Sketcher.Constraint("Vertical", 43, 3, 49, 3))
sketch1.addConstraint(Sketcher.Constraint("Vertical", 48, 3, 50, 3))
sketch1.addConstraint(Sketcher.Constraint("Vertical", 49, 3, 51, 3))
sketch1.addConstraint(Sketcher.Constraint("Vertical", 46, 3, 52, 3))
sketch1.addConstraint(Sketcher.Constraint("Vertical", 47, 3, 53, 3))
sketch1.addConstraint(Sketcher.Constraint("Vertical", 52, 3, 54, 3))
sketch1.addConstraint(Sketcher.Constraint("Vertical", 53, 3, 55, 3))
sketch1.addConstraint(Sketcher.Constraint("Vertical", 33, 3, 56, 3))
sketch1.addConstraint(Sketcher.Constraint("Vertical", 34, 3, 57, 3))
sketch1.addConstraint(Sketcher.Constraint("Vertical", 35, 3, 58, 3))
sketch1.addConstraint(Sketcher.Constraint("Vertical", 56, 3, 59, 3))
sketch1.addConstraint(Sketcher.Constraint("Vertical", 57, 3, 60, 3))
sketch1.addConstraint(Sketcher.Constraint("Vertical", 58, 3, 61, 3))
sketch1.addConstraint(Sketcher.Constraint("Vertical", 38, 3, 62, 3))
sketch1.addConstraint(Sketcher.Constraint("Vertical", 39, 3, 63, 3))
sketch1.addConstraint(Sketcher.Constraint("Vertical", 62, 3, 64, 3))
sketch1.addConstraint(Sketcher.Constraint("Vertical", 63, 3, 65, 3))
sketch1.addConstraint(Sketcher.Constraint("Vertical", 59, 3, 66, 3))
sketch1.addConstraint(Sketcher.Constraint("Vertical", 60, 3, 67, 3))
sketch1.addConstraint(Sketcher.Constraint("Vertical", 61, 3, 68, 3))
sketch1.addConstraint(Sketcher.Constraint("Vertical", 66, 3, 69, 3))
sketch1.addConstraint(Sketcher.Constraint("Vertical", 67, 3, 70, 3))
sketch1.addConstraint(Sketcher.Constraint("Vertical", 68, 3, 71, 3))
sketch1.addConstraint(Sketcher.Constraint("Vertical", 64, 3, 72, 3))
sketch1.addConstraint(Sketcher.Constraint("Vertical", 65, 3, 73, 3))
sketch1.addConstraint(Sketcher.Constraint("Vertical", 72, 3, 74, 3))
sketch1.addConstraint(Sketcher.Constraint("Vertical", 73, 3, 75, 3))
sketch1.addConstraint(Sketcher.Constraint("Diameter", 4, Q("15 mm")))
sketch1.addConstraint(Sketcher.Constraint("DistanceX", 1, 1, 1, 2, Q("270 mm")))
sketch1.addConstraint(Sketcher.Constraint("DistanceY", 0, 1, 0, 2, Q("250 mm")))
sketch1.addConstraint(Sketcher.Constraint("DistanceX", -1, 1, 4, 3, Q("15 mm")))
sketch1.addConstraint(Sketcher.Constraint("DistanceX", -1, 1, 5, 3, Q("45 mm")))
sketch1.addConstraint(Sketcher.Constraint("DistanceX", -1, 1, 8, 3, Q("75 mm")))
sketch1.addConstraint(Sketcher.Constraint("DistanceX", -1, 1, 9, 3, Q("105 mm")))
sketch1.addConstraint(Sketcher.Constraint("DistanceY", 12, 3, -1, 1, Q("85 mm")))
sketch1.addConstraint(Sketcher.Constraint("DistanceY", 14, 3, -1, 1, Q("115 mm")))
sketch1.addConstraint(Sketcher.Constraint("DistanceX", -1, 1, 20, 3, Q("135 mm")))
sketch1.addConstraint(Sketcher.Constraint("DistanceX", -1, 1, 21, 3, Q("165 mm")))
sketch1.addConstraint(Sketcher.Constraint("DistanceX", -1, 1, 22, 3, Q("195 mm")))
sketch1.addConstraint(Sketcher.Constraint("DistanceX", -1, 1, 26, 3, Q("225 mm")))
sketch1.addConstraint(Sketcher.Constraint("DistanceX", -1, 1, 27, 3, Q("255 mm")))
sketch1.addConstraint(Sketcher.Constraint("DistanceY", 40, 3, -1, 1, Q("145 mm")))
sketch1.addConstraint(Sketcher.Constraint("DistanceY", 42, 3, -1, 1, Q("175 mm")))
sketch1.addConstraint(Sketcher.Constraint("DistanceY", 48, 3, -1, 1, Q("205 mm")))
sketch1.addConstraint(Sketcher.Constraint("DistanceY", 50, 3, -1, 1, Q("235 mm")))
sketch1.addConstraint(Sketcher.Constraint("DistanceY", 4, 3, -1, 1, Q("24.575634 mm")))
sketch1.addConstraint(Sketcher.Constraint("DistanceY", 6, 3, -1, 1, Q("54.575634 mm")))
sketch1.setExpression("Constraints[207]", "Params.sketch1_diameter")
sketch1.setExpression("Constraints[208]", "Params.sketch1_width")
sketch1.setExpression("Constraints[209]", "Params.sketch1_height")
pad1 = body.newObject("PartDesign::Pad", "Pad")
pad1.Profile = sketch1
pad1.setExpression("Length", "Params.pad1_length")
pad1.Reversed = True

doc.recompute()
